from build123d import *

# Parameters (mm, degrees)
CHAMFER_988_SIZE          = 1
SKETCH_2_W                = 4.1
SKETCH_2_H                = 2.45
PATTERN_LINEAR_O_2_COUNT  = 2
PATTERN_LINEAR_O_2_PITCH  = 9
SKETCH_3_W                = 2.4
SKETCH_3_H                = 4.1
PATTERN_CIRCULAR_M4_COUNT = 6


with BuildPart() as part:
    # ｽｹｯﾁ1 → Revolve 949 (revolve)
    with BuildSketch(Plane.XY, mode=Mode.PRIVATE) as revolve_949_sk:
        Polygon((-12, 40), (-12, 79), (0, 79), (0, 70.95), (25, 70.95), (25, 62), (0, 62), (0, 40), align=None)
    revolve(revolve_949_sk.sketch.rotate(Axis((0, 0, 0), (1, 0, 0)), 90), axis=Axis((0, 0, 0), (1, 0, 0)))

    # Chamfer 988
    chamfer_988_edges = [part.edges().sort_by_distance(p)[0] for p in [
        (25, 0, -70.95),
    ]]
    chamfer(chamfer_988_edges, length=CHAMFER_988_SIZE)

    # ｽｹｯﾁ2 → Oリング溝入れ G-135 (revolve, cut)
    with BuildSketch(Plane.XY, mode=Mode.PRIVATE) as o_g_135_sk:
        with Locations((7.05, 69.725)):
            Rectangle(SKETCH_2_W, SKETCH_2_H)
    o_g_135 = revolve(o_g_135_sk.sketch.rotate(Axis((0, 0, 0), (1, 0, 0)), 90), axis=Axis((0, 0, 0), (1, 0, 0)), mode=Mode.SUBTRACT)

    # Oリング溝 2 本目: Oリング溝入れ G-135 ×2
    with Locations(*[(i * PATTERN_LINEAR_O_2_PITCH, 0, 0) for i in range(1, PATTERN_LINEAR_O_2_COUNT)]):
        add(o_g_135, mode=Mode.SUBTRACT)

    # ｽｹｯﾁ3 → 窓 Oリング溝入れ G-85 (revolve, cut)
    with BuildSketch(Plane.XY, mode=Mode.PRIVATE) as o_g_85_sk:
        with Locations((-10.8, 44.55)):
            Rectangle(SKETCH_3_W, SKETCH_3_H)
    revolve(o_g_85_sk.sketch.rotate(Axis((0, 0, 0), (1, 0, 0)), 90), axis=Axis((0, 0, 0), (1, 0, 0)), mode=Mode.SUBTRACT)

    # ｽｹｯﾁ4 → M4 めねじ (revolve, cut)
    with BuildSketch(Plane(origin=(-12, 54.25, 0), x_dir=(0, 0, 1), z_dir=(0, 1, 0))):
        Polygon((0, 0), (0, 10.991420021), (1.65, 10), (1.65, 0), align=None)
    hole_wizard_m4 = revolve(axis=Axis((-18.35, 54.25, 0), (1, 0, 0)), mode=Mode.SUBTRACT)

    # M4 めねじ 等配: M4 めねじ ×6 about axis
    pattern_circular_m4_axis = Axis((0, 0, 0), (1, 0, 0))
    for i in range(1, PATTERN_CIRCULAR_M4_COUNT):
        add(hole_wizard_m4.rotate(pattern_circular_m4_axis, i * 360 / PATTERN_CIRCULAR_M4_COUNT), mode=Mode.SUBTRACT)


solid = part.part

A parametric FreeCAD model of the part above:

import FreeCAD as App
import Part
import Sketcher
from FreeCAD import Vector
Q = App.Units.Quantity


def edges_at(feature, points):
    """Names of the edges that pass closest to the given points."""
    edges = feature.Shape.Edges
    near = lambda p: min(range(len(edges)), key=lambda i: edges[i].distToShape(Part.Vertex(*p))[0])
    return sorted({f"Edge{near(p) + 1}" for p in points})


def add_polygon(sketch, points):
    """Adds a closed chain of lines whose ends are joined by coincident constraints."""
    first, n = sketch.GeometryCount, len(points)
    for a, b in zip(points, points[1:] + points[:1]):
        sketch.addGeometry(Part.LineSegment(App.Vector(*a, 0), App.Vector(*b, 0)), False)
    for i in range(n):
        sketch.addConstraint(Sketcher.Constraint("Coincident", first + i, 2, first + (i + 1) % n, 1))

doc = App.newDocument("Part")
params = doc.addObject("Spreadsheet::Sheet", "Params")
for row, (alias, value) in enumerate([
    ("sketch1_width", "12 mm"),
    ("sketch1_width2", "25 mm"),
    ("sketch1_height", "39 mm"),
    ("sketch1_height2", "22 mm"),
    ("sketch1_height3", "8.95 mm"),
    ("revolution_angle", "360 deg"),
    ("chamfer_size", "1 mm"),
    ("sketch2_width", "4.1 mm"),
    ("sketch2_height", "2.45 mm"),
    ("groove_angle", "360 deg"),
    ("linearpattern_pitch", "9 mm"),
    ("sketch3_width", "2.4 mm"),
    ("sketch3_height", "4.1 mm"),
    ("groove2_angle", "360 deg"),
    ("sketch4_width", "10 mm"),
    ("sketch4_height", "1.65 mm"),
    ("groove3_angle", "360 deg"),
], start=1):
    params.set(f"A{row}", alias)
    params.set(f"B{row}", "=" + value)
    params.setAlias(f"B{row}", alias)

body = doc.addObject("PartDesign::Body", "Body")

sketch1 = body.newObject("Sketcher::SketchObject", "Sketch")
sketch1.AttachmentSupport = (doc.getObject("XY_Plane"), [""])
sketch1.MapMode = "FlatFace"
add_polygon(sketch1, [(-12, 79), (-12, 40), (0, 40), (0, 62), (25, 62), (25, 71), (0, 71), (0, 79)])
sketch1.addConstraint([
    Sketcher.Constraint("Vertical", 0),
    Sketcher.Constraint("Horizontal", 1),
    Sketcher.Constraint("Vertical", 2),
    Sketcher.Constraint("Horizontal", 3),
    Sketcher.Constraint("Vertical", 4),
    Sketcher.Constraint("Horizontal", 5),
    Sketcher.Constraint("Vertical", 6),
    Sketcher.Constraint("Horizontal", 7),
    Sketcher.Constraint("PointOnObject", 1, 2, -2),
    Sketcher.Constraint("PointOnObject", 5, 2, -2),
    Sketcher.Constraint("DistanceX", 1, 1, 1, 2, Q("12 mm")),
    Sketcher.Constraint("DistanceX", 3, 1, 3, 2, Q("25 mm")),
    Sketcher.Constraint("DistanceY", 0, 2, 0, 1, Q("39 mm")),
    Sketcher.Constraint("DistanceY", 2, 1, 2, 2, Q("22 mm")),
    Sketcher.Constraint("DistanceY", -1, 1, 0, 2, Q("40 mm")),
    Sketcher.Constraint("DistanceY", 4, 1, 4, 2, Q("8.95 mm")),
])
sketch1.setExpression("Constraints[18]", "Params.sketch1_width")
sketch1.setExpression("Constraints[19]", "Params.sketch1_width2")
sketch1.setExpression("Constraints[20]", "Params.sketch1_height")
sketch1.setExpression("Constraints[21]", "Params.sketch1_height2")
sketch1.setExpression("Constraints[23]", "Params.sketch1_height3")
revolution = body.newObject("PartDesign::Revolution", "Revolution")
revolution.Profile = sketch1
revolution.ReferenceAxis = (sketch1, ["H_Axis"])
revolution.setExpression("Angle", "Params.revolution_angle")
doc.recompute()

chamfer = body.newObject("PartDesign::Chamfer", "Chamfer")
chamfer.Base = (revolution, edges_at(revolution, [(25, 0, -70.95)]))
chamfer.setExpression("Size", "Params.chamfer_size")

sketch2 = body.newObject("Sketcher::SketchObject", "Sketch001")
sketch2.AttachmentSupport = (doc.getObject("XY_Plane"), [""])
sketch2.MapMode = "FlatFace"
add_polygon(sketch2, [(5, 71), (5, 68.5), (9.1, 68.5), (9.1, 71)])
sketch2.addConstraint([
    Sketcher.Constraint("Vertical", 0),
    Sketcher.Constraint("Horizontal", 1),
    Sketcher.Constraint("Vertical", 2),
    Sketcher.Constraint("Horizontal", 3),
    Sketcher.Constraint("DistanceX", 1, 1, 1, 2, Q("4.1 mm")),
    Sketcher.Constraint("DistanceX", -1, 1, 0, 2, Q("5 mm")),
    Sketcher.Constraint("DistanceY", 0, 2, 0, 1, Q("2.45 mm")),
    Sketcher.Constraint("DistanceY", -1, 1, 0, 2, Q("68.5 mm")),
])
sketch2.setExpression("Constraints[8]", "Params.sketch2_width")
sketch2.setExpression("Constraints[10]", "Params.sketch2_height")
groove = body.newObject("PartDesign::Groove", "Groove")
groove.Profile = sketch2
groove.ReferenceAxis = (sketch2, ["H_Axis"])
groove.setExpression("Angle", "Params.groove_angle")
doc.recompute()

linearpattern = body.newObject("PartDesign::LinearPattern", "LinearPattern")
linearpattern.Originals = [groove]
linearpattern.Direction = (doc.getObject("X_Axis"), [""])
linearpattern.Mode = "offset"
linearpattern.setExpression("Offset", "Params.linearpattern_pitch")
linearpattern.Occurrences = 2
body.Tip = linearpattern

sketch3 = body.newObject("Sketcher::SketchObject", "Sketch002")
sketch3.AttachmentSupport = (doc.getObject("XY_Plane"), [""])
sketch3.MapMode = "FlatFace"
add_polygon(sketch3, [(-12, 46.6), (-12, 42.5), (-9.6, 42.5), (-9.6, 46.6)])
sketch3.addConstraint([
    Sketcher.Constraint("Vertical", 0),
    Sketcher.Constraint("Horizontal", 1),
    Sketcher.Constraint("Vertical", 2),
    Sketcher.Constraint("Horizontal", 3),
    Sketcher.Constraint("DistanceX", 1, 1, 1, 2, Q("2.4 mm")),
    Sketcher.Constraint("DistanceY", 0, 2, 0, 1, Q("4.1 mm")),
    Sketcher.Constraint("DistanceX", 0, 2, -1, 1, Q("12 mm")),
    Sketcher.Constraint("DistanceY", -1, 1, 0, 2, Q("42.5 mm")),
])
sketch3.setExpression("Constraints[8]", "Params.sketch3_width")
sketch3.setExpression("Constraints[9]", "Params.sketch3_height")
groove2 = body.newObject("PartDesign::Groove", "Groove001")
groove2.Profile = sketch3
groove2.ReferenceAxis = (sketch3, ["H_Axis"])
groove2.setExpression("Angle", "Params.groove2_angle")

sketch4 = body.newObject("Sketcher::SketchObject", "Sketch003")
sketch4.AttachmentSupport = (doc.getObject("XZ_Plane"), [""])
sketch4.MapMode = "FlatFace"
sketch4.AttachmentOffset = App.Placement(Vector(0, 0, -54.25), App.Rotation())
add_polygon(sketch4, [(-1, 0), (-12, 0), (-12, 1.6), (-2, 1.6)])
sketch4.addConstraint([
    Sketcher.Constraint("Horizontal", 0),
    Sketcher.Constraint("Vertical", 1),
    Sketcher.Constraint("Horizontal", 2),
    Sketcher.Constraint("PointOnObject", 0, 2, -1),
    Sketcher.Constraint("DistanceX", 2, 1, 2, 2, Q("10 mm")),
    Sketcher.Constraint("Angle", 3, Q("-59 deg")),
    Sketcher.Constraint("DistanceX", 0, 2, -1, 1, Q("12 mm")),
    Sketcher.Constraint("DistanceY", 1, 1, 1, 2, Q("1.65 mm")),
])
sketch4.setExpression("Constraints[8]", "Params.sketch4_width")
sketch4.setExpression("Constraints[11]", "Params.sketch4_height")
groove3 = body.newObject("PartDesign::Groove", "Groove002")
groove3.Profile = sketch4
groove3.ReferenceAxis = (sketch4, ["H_Axis"])
groove3.setExpression("Angle", "Params.groove3_angle")
doc.recompute()

polarpattern = body.newObject("PartDesign::PolarPattern", "PolarPattern")
polarpattern.Originals = [groove3]
polarpattern.Axis = (doc.getObject("X_Axis"), [""])
polarpattern.Angle = 360
polarpattern.Occurrences = 6
body.Tip = polarpattern

doc.recompute()
